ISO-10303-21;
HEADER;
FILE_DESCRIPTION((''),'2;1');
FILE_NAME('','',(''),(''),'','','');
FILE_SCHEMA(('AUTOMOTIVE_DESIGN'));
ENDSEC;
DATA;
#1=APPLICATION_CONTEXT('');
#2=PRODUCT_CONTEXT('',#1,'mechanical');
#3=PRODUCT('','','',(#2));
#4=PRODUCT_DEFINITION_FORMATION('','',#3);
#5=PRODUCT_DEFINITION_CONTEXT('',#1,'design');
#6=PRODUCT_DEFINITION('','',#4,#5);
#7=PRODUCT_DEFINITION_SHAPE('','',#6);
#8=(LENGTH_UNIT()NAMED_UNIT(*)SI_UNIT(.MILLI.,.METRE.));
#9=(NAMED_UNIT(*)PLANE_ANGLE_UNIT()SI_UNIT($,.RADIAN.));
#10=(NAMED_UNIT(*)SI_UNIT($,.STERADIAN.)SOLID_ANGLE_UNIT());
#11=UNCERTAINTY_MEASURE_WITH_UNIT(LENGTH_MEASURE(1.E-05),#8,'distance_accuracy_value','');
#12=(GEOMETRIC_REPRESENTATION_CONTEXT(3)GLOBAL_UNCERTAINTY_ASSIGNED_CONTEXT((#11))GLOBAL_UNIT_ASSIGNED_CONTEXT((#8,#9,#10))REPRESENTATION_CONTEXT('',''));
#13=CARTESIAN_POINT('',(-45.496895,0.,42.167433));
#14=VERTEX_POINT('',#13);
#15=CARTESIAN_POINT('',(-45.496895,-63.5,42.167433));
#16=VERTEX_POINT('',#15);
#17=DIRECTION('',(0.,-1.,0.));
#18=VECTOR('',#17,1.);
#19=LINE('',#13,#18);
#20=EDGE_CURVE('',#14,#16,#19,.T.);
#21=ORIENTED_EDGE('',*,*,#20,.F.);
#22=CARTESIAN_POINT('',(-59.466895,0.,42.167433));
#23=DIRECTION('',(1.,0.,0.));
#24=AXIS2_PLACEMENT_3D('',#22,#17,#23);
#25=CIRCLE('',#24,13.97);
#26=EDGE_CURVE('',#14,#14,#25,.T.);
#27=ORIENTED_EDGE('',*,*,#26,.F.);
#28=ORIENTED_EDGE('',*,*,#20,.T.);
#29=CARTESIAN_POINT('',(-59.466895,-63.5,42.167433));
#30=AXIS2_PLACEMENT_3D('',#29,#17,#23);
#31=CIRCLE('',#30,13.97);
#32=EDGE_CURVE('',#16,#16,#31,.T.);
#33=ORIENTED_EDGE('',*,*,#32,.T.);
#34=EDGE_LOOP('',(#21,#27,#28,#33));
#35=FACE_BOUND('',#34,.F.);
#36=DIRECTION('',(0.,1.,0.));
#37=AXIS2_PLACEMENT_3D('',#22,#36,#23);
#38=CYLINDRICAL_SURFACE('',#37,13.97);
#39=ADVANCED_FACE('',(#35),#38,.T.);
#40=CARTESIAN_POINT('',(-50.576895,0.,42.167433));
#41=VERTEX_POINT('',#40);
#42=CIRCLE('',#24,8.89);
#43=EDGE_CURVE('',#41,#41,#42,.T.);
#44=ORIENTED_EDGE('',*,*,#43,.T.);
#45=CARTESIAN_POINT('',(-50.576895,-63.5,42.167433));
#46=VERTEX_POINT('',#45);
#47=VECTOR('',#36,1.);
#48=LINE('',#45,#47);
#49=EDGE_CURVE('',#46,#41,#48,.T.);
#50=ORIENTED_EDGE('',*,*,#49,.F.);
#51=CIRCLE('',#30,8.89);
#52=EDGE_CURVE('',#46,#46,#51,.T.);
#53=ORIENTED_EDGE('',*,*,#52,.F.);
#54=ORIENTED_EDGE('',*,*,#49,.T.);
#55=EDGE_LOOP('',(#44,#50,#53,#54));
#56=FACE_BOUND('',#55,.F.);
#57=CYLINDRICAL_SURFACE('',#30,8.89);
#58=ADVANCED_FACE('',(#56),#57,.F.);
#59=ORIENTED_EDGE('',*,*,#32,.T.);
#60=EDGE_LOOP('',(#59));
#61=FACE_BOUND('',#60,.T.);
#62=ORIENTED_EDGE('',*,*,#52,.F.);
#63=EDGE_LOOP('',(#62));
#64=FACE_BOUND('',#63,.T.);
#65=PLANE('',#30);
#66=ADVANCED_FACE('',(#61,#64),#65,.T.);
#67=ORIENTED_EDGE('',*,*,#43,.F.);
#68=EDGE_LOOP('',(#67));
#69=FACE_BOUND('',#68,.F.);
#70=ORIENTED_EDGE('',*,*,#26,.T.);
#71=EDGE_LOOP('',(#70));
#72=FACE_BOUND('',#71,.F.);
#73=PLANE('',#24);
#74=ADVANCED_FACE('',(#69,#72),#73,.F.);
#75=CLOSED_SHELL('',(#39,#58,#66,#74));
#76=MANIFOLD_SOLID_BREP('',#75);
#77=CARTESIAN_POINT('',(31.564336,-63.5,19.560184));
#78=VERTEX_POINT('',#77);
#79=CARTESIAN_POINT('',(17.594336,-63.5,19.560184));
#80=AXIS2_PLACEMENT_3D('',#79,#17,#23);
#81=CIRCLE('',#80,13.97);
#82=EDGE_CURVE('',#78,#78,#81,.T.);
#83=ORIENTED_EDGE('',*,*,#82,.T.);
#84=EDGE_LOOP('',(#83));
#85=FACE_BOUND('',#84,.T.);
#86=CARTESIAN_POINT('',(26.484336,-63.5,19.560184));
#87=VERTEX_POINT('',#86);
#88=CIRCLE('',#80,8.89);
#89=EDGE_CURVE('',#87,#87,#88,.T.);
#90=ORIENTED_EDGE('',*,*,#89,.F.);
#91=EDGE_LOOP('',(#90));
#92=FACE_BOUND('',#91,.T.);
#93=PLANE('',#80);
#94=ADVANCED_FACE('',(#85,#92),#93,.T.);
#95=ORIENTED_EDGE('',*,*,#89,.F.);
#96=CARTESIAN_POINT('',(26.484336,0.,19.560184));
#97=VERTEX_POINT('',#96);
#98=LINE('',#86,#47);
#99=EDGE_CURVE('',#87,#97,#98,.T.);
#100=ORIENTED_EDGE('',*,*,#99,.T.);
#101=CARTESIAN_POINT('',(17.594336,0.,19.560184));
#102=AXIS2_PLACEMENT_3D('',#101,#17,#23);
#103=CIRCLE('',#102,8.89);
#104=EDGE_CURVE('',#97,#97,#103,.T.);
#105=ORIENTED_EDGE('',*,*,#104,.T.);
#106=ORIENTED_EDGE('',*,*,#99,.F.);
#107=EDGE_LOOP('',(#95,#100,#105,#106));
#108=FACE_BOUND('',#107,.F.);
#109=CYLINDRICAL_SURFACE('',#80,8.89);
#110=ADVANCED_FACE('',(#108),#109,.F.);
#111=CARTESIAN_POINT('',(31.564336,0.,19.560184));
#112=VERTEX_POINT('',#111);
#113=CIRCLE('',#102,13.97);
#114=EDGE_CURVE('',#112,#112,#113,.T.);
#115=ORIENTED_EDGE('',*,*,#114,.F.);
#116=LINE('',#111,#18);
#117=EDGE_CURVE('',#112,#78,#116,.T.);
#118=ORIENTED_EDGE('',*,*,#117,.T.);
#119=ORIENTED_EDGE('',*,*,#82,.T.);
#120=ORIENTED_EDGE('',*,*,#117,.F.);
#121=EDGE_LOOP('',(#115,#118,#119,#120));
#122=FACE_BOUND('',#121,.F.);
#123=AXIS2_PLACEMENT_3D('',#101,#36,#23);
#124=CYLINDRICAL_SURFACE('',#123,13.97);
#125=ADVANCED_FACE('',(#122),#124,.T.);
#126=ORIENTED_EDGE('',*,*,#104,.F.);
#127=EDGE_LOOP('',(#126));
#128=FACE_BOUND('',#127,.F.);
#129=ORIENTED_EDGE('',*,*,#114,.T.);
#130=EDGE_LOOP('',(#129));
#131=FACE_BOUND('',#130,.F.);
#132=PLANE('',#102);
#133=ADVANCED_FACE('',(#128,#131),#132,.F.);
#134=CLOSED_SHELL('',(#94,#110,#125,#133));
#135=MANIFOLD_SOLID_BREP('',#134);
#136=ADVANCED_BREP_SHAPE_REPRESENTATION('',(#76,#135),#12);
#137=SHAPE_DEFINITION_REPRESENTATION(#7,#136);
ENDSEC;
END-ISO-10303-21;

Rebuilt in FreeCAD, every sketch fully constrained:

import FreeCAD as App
import Part
import Sketcher
Q = App.Units.Quantity

doc = App.newDocument("Part")
params = doc.addObject("Spreadsheet::Sheet", "Params")
for row, (alias, value) in enumerate([
    ("sketch1_diameter", "1.1 in"),
    ("pad1_length", "2.5 in"),
    ("sketch2_diameter", "0.7 in"),
    ("pocket1_length", "2.5 in"),
    ("sketch3_diameter", "0.7 in"),
    ("pocket2_length", "2.5 in"),
], start=1):
    params.set(f"A{row}", alias)
    params.set(f"B{row}", "=" + value)
    params.setAlias(f"B{row}", alias)

body = doc.addObject("PartDesign::Body", "Body")
body.AllowCompound = True

sketch1 = doc.addObject("Sketcher::SketchObject", "Sketch")
body.addObject(sketch1)
sketch1.AttachmentSupport = (doc.XZ_Plane, [""])
sketch1.MapMode = "FlatFace"
sketch1.addGeometry([
    Part.Circle(App.Vector(-59.466895, 42.167433, 0), App.Vector(0, 0, 1), 13.97),
    Part.Circle(App.Vector(17.594336, 19.560184, 0), App.Vector(0, 0, 1), 13.97),
], False)
sketch1.addConstraint([
    Sketcher.Constraint("Equal", 0, 1),
    Sketcher.Constraint("Diameter", 0, Q("1.1 in")),
    Sketcher.Constraint("DistanceX", 0, 3, 1, 3, 77.061231),
    Sketcher.Constraint("DistanceY", 1, 3, 0, 3, 22.607249),
    Sketcher.Constraint("DistanceX", 0, 3, -1, 1, 59.466895),
    Sketcher.Constraint("DistanceY", -1, 1, 0, 3, 42.167433),
])
sketch1.setExpression("Constraints[1]", "Params.sketch1_diameter")
pad1 = doc.addObject("PartDesign::Pad", "Pad")
body.addObject(pad1)
pad1.Profile = sketch1
pad1.setExpression("Length", "Params.pad1_length")

sketch2 = doc.addObject("Sketcher::SketchObject", "Sketch001")
body.addObject(sketch2)
sketch2.AttachmentSupport = (doc.XZ_Plane, [""])
sketch2.MapMode = "FlatFace"
sketch2.AttachmentOffset = App.Placement(App.Vector(0, 0, 2.5 * 25.4), App.Rotation())
sketch2.addGeometry(Part.Circle(App.Vector(-59.466895, 42.167433, 0), App.Vector(0, 0, 1), 8.89), False)
sketch2.addConstraint([
    Sketcher.Constraint("Diameter", 0, Q("0.7 in")),
    Sketcher.Constraint("DistanceX", 0, 3, -1, 1, 59.466895),
    Sketcher.Constraint("DistanceY", -1, 1, 0, 3, 42.167433),
])
sketch2.setExpression("Constraints[0]", "Params.sketch2_diameter")
pocket1 = doc.addObject("PartDesign::Pocket", "Pocket")
body.addObject(pocket1)
pocket1.Profile = sketch2
pocket1.setExpression("Length", "Params.pocket1_length")

sketch3 = doc.addObject("Sketcher::SketchObject", "Sketch002")
body.addObject(sketch3)
sketch3.AttachmentSupport = (doc.XZ_Plane, [""])
sketch3.MapMode = "FlatFace"
sketch3.AttachmentOffset = App.Placement(App.Vector(0, 0, 2.5 * 25.4), App.Rotation())
sketch3.addGeometry(Part.Circle(App.Vector(17.594336, 19.560184, 0), App.Vector(0, 0, 1), 8.89), False)
sketch3.addConstraint([
    Sketcher.Constraint("Diameter", 0, Q("0.7 in")),
    Sketcher.Constraint("DistanceX", -1, 1, 0, 3, 17.594336),
    Sketcher.Constraint("DistanceY", -1, 1, 0, 3, 19.560184),
])
sketch3.setExpression("Constraints[0]", "Params.sketch3_diameter")
pocket2 = doc.addObject("PartDesign::Pocket", "Pocket001")
body.addObject(pocket2)
pocket2.Profile = sketch3
pocket2.setExpression("Length", "Params.pocket2_length")

doc.recompute()
